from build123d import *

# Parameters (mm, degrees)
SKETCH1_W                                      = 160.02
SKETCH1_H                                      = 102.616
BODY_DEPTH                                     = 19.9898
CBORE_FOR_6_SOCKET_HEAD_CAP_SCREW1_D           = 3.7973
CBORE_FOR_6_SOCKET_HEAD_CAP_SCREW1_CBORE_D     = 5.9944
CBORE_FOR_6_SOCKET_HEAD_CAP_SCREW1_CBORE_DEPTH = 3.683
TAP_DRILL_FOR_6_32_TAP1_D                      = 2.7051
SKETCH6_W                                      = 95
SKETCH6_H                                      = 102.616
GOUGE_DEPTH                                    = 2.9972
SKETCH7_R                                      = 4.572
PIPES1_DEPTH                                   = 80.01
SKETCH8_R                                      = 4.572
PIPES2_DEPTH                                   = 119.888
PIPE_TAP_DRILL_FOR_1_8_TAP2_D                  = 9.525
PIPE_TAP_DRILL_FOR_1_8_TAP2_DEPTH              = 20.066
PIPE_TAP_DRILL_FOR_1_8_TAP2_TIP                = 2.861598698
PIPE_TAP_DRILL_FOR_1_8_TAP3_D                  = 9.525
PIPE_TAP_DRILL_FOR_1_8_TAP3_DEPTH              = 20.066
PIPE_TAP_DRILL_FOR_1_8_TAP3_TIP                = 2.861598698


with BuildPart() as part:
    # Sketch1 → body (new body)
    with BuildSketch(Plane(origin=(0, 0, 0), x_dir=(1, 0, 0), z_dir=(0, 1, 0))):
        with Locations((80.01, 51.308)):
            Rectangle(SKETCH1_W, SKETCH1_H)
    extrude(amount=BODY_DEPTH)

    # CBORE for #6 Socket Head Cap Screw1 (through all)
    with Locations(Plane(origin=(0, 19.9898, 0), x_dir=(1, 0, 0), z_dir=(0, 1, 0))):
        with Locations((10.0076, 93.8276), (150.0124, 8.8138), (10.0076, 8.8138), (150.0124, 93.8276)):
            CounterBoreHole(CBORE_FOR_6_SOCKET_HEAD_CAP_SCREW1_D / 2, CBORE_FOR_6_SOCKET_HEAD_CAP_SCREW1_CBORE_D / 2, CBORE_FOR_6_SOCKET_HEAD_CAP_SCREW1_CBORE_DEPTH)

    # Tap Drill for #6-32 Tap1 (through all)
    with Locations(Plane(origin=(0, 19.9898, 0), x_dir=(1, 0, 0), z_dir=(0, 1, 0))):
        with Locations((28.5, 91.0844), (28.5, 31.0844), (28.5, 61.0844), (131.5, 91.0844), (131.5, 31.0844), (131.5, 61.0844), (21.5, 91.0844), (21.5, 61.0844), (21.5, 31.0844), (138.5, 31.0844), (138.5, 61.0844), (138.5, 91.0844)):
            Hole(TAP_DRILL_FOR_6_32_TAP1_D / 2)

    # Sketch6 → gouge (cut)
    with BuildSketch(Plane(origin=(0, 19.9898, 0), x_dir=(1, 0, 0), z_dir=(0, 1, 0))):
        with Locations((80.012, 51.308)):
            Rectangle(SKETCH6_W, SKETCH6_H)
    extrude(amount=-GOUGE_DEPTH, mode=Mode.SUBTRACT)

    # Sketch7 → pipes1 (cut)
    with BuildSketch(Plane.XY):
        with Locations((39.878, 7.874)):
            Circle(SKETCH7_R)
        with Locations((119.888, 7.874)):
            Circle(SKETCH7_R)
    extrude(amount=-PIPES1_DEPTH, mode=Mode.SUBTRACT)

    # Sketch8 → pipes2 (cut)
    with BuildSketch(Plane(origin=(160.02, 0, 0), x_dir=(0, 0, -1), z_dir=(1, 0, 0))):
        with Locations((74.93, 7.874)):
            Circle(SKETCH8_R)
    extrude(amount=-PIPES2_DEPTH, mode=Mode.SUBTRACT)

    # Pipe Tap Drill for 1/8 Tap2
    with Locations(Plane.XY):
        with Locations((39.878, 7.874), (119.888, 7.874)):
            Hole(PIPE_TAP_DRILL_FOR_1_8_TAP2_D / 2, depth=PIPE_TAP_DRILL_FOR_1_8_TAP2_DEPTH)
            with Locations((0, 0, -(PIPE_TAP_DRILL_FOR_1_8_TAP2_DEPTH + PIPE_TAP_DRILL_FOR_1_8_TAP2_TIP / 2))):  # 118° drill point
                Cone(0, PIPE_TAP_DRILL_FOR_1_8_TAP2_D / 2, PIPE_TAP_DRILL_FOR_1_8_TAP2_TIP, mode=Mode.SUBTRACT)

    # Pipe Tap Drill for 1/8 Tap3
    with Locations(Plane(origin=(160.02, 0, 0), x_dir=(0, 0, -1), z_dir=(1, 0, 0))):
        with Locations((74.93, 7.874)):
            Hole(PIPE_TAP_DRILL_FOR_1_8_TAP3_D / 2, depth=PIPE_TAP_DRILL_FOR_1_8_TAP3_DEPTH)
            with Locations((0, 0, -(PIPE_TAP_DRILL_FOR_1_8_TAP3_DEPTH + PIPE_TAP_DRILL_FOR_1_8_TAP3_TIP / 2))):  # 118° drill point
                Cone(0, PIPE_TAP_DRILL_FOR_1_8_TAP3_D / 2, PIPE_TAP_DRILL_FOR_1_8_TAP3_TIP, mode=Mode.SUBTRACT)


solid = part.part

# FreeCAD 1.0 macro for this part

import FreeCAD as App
import Part
import Sketcher
from FreeCAD import Vector
Q = App.Units.Quantity


def add_polygon(sketch, points):
    """Adds a closed chain of lines whose ends are joined by coincident constraints."""
    first, n = sketch.GeometryCount, len(points)
    for a, b in zip(points, points[1:] + points[:1]):
        sketch.addGeometry(Part.LineSegment(App.Vector(*a, 0), App.Vector(*b, 0)), False)
    for i in range(n):
        sketch.addConstraint(Sketcher.Constraint("Coincident", first + i, 2, first + (i + 1) % n, 1))

doc = App.newDocument("Part")
body = doc.addObject("PartDesign::Body", "Body")

# Sketch on XZ plane
sketch1 = body.newObject("Sketcher::SketchObject", "Sketch")
sketch1.AttachmentSupport = (doc.getObject("XZ_Plane"), [""])
sketch1.MapMode = "FlatFace"
add_polygon(sketch1, [(0, -102.616), (0, 0), (160.02, 0), (160.02, -102.616)])  # lines 0-3
sketch1.addConstraint(Sketcher.Constraint("Vertical", 0))
sketch1.addConstraint(Sketcher.Constraint("Horizontal", 1))
sketch1.addConstraint(Sketcher.Constraint("Vertical", 2))
sketch1.addConstraint(Sketcher.Constraint("Horizontal", 3))
sketch1.addConstraint(Sketcher.Constraint("Coincident", 0, 2, -1, 1))
sketch1.addConstraint(Sketcher.Constraint("DistanceX", 1, 1, 1, 2, Q("6.3 in")))
sketch1.addConstraint(Sketcher.Constraint("DistanceY", 0, 1, 0, 2, Q("4.04 in")))
pad1 = body.newObject("PartDesign::Pad", "Pad")
pad1.Profile = sketch1
pad1.Length = Q("0.787 in")
pad1.Reversed = True

# Sketch on XZ plane
sketch2 = body.newObject("Sketcher::SketchObject", "Sketch001")
sketch2.AttachmentSupport = (doc.getObject("XZ_Plane"), [""])
sketch2.MapMode = "FlatFace"
sketch2.AttachmentOffset = App.Placement(Vector(0, 0, -0.787 * 25.4), App.Rotation())
sketch2.addGeometry(Part.Circle(Vector(10.0076, -93.8276, 0), Vector(0, 0, 1), 1.89865), False)
sketch2.addGeometry(Part.Circle(Vector(150.0124, -8.8138, 0), Vector(0, 0, 1), 1.89865), False)
sketch2.addGeometry(Part.Circle(Vector(10.0076, -8.8138, 0), Vector(0, 0, 1), 1.89865), False)
sketch2.addGeometry(Part.Circle(Vector(150.0124, -93.8276, 0), Vector(0, 0, 1), 1.89865), False)
sketch2.addConstraint(Sketcher.Constraint("Equal", 0, 1))
sketch2.addConstraint(Sketcher.Constraint("Equal", 1, 2))
sketch2.addConstraint(Sketcher.Constraint("Equal", 2, 3))
sketch2.addConstraint(Sketcher.Constraint("Horizontal", 1, 3, 2, 3))
sketch2.addConstraint(Sketcher.Constraint("Horizontal", 0, 3, 3, 3))
sketch2.addConstraint(Sketcher.Constraint("Vertical", 0, 3, 2, 3))
sketch2.addConstraint(Sketcher.Constraint("Vertical", 1, 3, 3, 3))
sketch2.addConstraint(Sketcher.Constraint("Diameter", 0, Q("0.1495 in")))
sketch2.addConstraint(Sketcher.Constraint("DistanceX", -1, 1, 0, 3, Q("0.394 in")))
sketch2.addConstraint(Sketcher.Constraint("DistanceY", 0, 3, -1, 1, Q("3.694 in")))
sketch2.addConstraint(Sketcher.Constraint("DistanceX", -1, 1, 1, 3, Q("5.906 in")))
sketch2.addConstraint(Sketcher.Constraint("DistanceY", 1, 3, -1, 1, Q("0.347 in")))
doc.recompute()
hole = body.newObject("PartDesign::Hole", "Hole")
hole.Profile = sketch2
hole.ThreadType = "None"
hole.Diameter = Q("0.1495 in")
hole.DepthType = "ThroughAll"
hole.HoleCutType = "Counterbore"
hole.HoleCutDiameter = Q("0.236 in")
hole.HoleCutDepth = Q("0.145 in")
hole.Reversed = True

# Sketch on XZ plane
sketch3 = body.newObject("Sketcher::SketchObject", "Sketch002")
sketch3.AttachmentSupport = (doc.getObject("XZ_Plane"), [""])
sketch3.MapMode = "FlatFace"
sketch3.AttachmentOffset = App.Placement(Vector(0, 0, -0.787 * 25.4), App.Rotation())
sketch3.addGeometry(Part.Circle(Vector(28.5, -91.0844, 0), Vector(0, 0, 1), 1.35255), False)
sketch3.addGeometry(Part.Circle(Vector(28.5, -31.0844, 0), Vector(0, 0, 1), 1.35255), False)
sketch3.addGeometry(Part.Circle(Vector(28.5, -61.0844, 0), Vector(0, 0, 1), 1.35255), False)
sketch3.addGeometry(Part.Circle(Vector(131.5, -91.0844, 0), Vector(0, 0, 1), 1.35255), False)
sketch3.addGeometry(Part.Circle(Vector(131.5, -31.0844, 0), Vector(0, 0, 1), 1.35255), False)
sketch3.addGeometry(Part.Circle(Vector(131.5, -61.0844, 0), Vector(0, 0, 1), 1.35255), False)
sketch3.addGeometry(Part.Circle(Vector(21.5, -91.0844, 0), Vector(0, 0, 1), 1.35255), False)
sketch3.addGeometry(Part.Circle(Vector(21.5, -61.0844, 0), Vector(0, 0, 1), 1.35255), False)
sketch3.addGeometry(Part.Circle(Vector(21.5, -31.0844, 0), Vector(0, 0, 1), 1.35255), False)
sketch3.addGeometry(Part.Circle(Vector(138.5, -31.0844, 0), Vector(0, 0, 1), 1.35255), False)
sketch3.addGeometry(Part.Circle(Vector(138.5, -61.0844, 0), Vector(0, 0, 1), 1.35255), False)
sketch3.addGeometry(Part.Circle(Vector(138.5, -91.0844, 0), Vector(0, 0, 1), 1.35255), False)
sketch3.addConstraint(Sketcher.Constraint("Equal", 0, 1))
sketch3.addConstraint(Sketcher.Constraint("Equal", 1, 2))
sketch3.addConstraint(Sketcher.Constraint("Equal", 2, 3))
sketch3.addConstraint(Sketcher.Constraint("Equal", 3, 4))
sketch3.addConstraint(Sketcher.Constraint("Equal", 4, 5))
sketch3.addConstraint(Sketcher.Constraint("Equal", 5, 6))
sketch3.addConstraint(Sketcher.Constraint("Equal", 6, 7))
sketch3.addConstraint(Sketcher.Constraint("Equal", 7, 8))
sketch3.addConstraint(Sketcher.Constraint("Equal", 8, 9))
sketch3.addConstraint(Sketcher.Constraint("Equal", 9, 10))
sketch3.addConstraint(Sketcher.Constraint("Equal", 10, 11))
sketch3.addConstraint(Sketcher.Constraint("Horizontal", 0, 3, 3, 3))
sketch3.addConstraint(Sketcher.Constraint("Horizontal", 1, 3, 4, 3))
sketch3.addConstraint(Sketcher.Constraint("Horizontal", 2, 3, 5, 3))
sketch3.addConstraint(Sketcher.Constraint("Horizontal", 3, 3, 6, 3))
sketch3.addConstraint(Sketcher.Constraint("Horizontal", 5, 3, 7, 3))
sketch3.addConstraint(Sketcher.Constraint("Horizontal", 4, 3, 8, 3))
sketch3.addConstraint(Sketcher.Constraint("Horizontal", 8, 3, 9, 3))
sketch3.addConstraint(Sketcher.Constraint("Horizontal", 7, 3, 10, 3))
sketch3.addConstraint(Sketcher.Constraint("Horizontal", 6, 3, 11, 3))
sketch3.addConstraint(Sketcher.Constraint("Vertical", 0, 3, 1, 3))
sketch3.addConstraint(Sketcher.Constraint("Vertical", 1, 3, 2, 3))
sketch3.addConstraint(Sketcher.Constraint("Vertical", 3, 3, 4, 3))
sketch3.addConstraint(Sketcher.Constraint("Vertical", 4, 3, 5, 3))
sketch3.addConstraint(Sketcher.Constraint("Vertical", 6, 3, 7, 3))
sketch3.addConstraint(Sketcher.Constraint("Vertical", 7, 3, 8, 3))
sketch3.addConstraint(Sketcher.Constraint("Vertical", 9, 3, 10, 3))
sketch3.addConstraint(Sketcher.Constraint("Vertical", 10, 3, 11, 3))
sketch3.addConstraint(Sketcher.Constraint("Diameter", 0, Q("0.1065 in")))
sketch3.addConstraint(Sketcher.Constraint("DistanceY", 0, 3, -1, 1, Q("3.586 in")))
sketch3.addConstraint(Sketcher.Constraint("DistanceX", -1, 1, 0, 3, 28.5))
sketch3.addConstraint(Sketcher.Constraint("DistanceY", 1, 3, -1, 1, 31.0844))
sketch3.addConstraint(Sketcher.Constraint("DistanceY", 2, 3, -1, 1, 61.0844))
sketch3.addConstraint(Sketcher.Constraint("DistanceX", -1, 1, 3, 3, 131.5))
sketch3.addConstraint(Sketcher.Constraint("DistanceX", -1, 1, 6, 3, 21.5))
sketch3.addConstraint(Sketcher.Constraint("DistanceX", -1, 1, 9, 3, 138.5))
doc.recompute()
hole2 = body.newObject("PartDesign::Hole", "Hole001")
hole2.Profile = sketch3
hole2.ThreadType = "None"
hole2.Diameter = Q("0.1065 in")
hole2.DepthType = "ThroughAll"
hole2.Reversed = True

# Sketch on XZ plane
sketch4 = body.newObject("Sketcher::SketchObject", "Sketch003")
sketch4.AttachmentSupport = (doc.getObject("XZ_Plane"), [""])
sketch4.MapMode = "FlatFace"
sketch4.AttachmentOffset = App.Placement(Vector(0, 0, -0.787 * 25.4), App.Rotation())
add_polygon(sketch4, [(32.512, -102.616), (32.512, 0), (127.512, 0), (127.512, -102.616)])  # lines 0-3
sketch4.addConstraint(Sketcher.Constraint("Vertical", 0))
sketch4.addConstraint(Sketcher.Constraint("Horizontal", 1))
sketch4.addConstraint(Sketcher.Constraint("Vertical", 2))
sketch4.addConstraint(Sketcher.Constraint("Horizontal", 3))
sketch4.addConstraint(Sketcher.Constraint("PointOnObject", 0, 2, -1))
sketch4.addConstraint(Sketcher.Constraint("DistanceY", 0, 1, 0, 2, Q("4.04 in")))
sketch4.addConstraint(Sketcher.Constraint("DistanceX", -1, 1, 0, 2, Q("1.28 in")))
sketch4.addConstraint(Sketcher.Constraint("DistanceX", 1, 1, 1, 2, 95.0))
pocket1 = body.newObject("PartDesign::Pocket", "Pocket")
pocket1.Profile = sketch4
pocket1.Length = Q("0.118 in")
pocket1.Reversed = True

# Sketch on XY plane
sketch5 = body.newObject("Sketcher::SketchObject", "Sketch004")
sketch5.AttachmentSupport = (doc.getObject("XY_Plane"), [""])
sketch5.MapMode = "FlatFace"
sketch5.addGeometry(Part.Circle(Vector(39.878, 7.874, 0), Vector(0, 0, 1), 4.572), False)
sketch5.addGeometry(Part.Circle(Vector(119.888, 7.874, 0), Vector(0, 0, 1), 4.572), False)
sketch5.addConstraint(Sketcher.Constraint("Equal", 0, 1))
sketch5.addConstraint(Sketcher.Constraint("Horizontal", 0, 3, 1, 3))
sketch5.addConstraint(Sketcher.Constraint("Diameter", 0, Q("0.36 in")))
sketch5.addConstraint(Sketcher.Constraint("DistanceX", -1, 1, 0, 3, Q("1.57 in")))
sketch5.addConstraint(Sketcher.Constraint("DistanceY", -1, 1, 0, 3, Q("0.31 in")))
sketch5.addConstraint(Sketcher.Constraint("DistanceX", -1, 1, 1, 3, Q("4.72 in")))
pocket2 = body.newObject("PartDesign::Pocket", "Pocket001")
pocket2.Profile = sketch5
pocket2.Length = Q("3.15 in")

# Sketch on YZ plane
sketch6 = body.newObject("Sketcher::SketchObject", "Sketch005")
sketch6.AttachmentSupport = (doc.getObject("YZ_Plane"), [""])
sketch6.MapMode = "FlatFace"
sketch6.AttachmentOffset = App.Placement(Vector(0, 0, 6.3 * 25.4), App.Rotation())
sketch6.addGeometry(Part.Circle(Vector(7.874, -74.93, 0), Vector(0, 0, 1), 4.572), False)
sketch6.addConstraint(Sketcher.Constraint("Diameter", 0, Q("0.36 in")))
sketch6.addConstraint(Sketcher.Constraint("DistanceX", -1, 1, 0, 3, Q("0.31 in")))
sketch6.addConstraint(Sketcher.Constraint("DistanceY", 0, 3, -1, 1, Q("2.95 in")))
pocket3 = body.newObject("PartDesign::Pocket", "Pocket002")
pocket3.Profile = sketch6
pocket3.Length = Q("4.72 in")

# Sketch on XY plane
sketch7 = body.newObject("Sketcher::SketchObject", "Sketch006")
sketch7.AttachmentSupport = (doc.getObject("XY_Plane"), [""])
sketch7.MapMode = "FlatFace"
sketch7.addGeometry(Part.Circle(Vector(39.878, 7.874, 0), Vector(0, 0, 1), 4.7625), False)
sketch7.addGeometry(Part.Circle(Vector(119.888, 7.874, 0), Vector(0, 0, 1), 4.7625), False)
sketch7.addConstraint(Sketcher.Constraint("Equal", 0, 1))
sketch7.addConstraint(Sketcher.Constraint("Horizontal", 0, 3, 1, 3))
sketch7.addConstraint(Sketcher.Constraint("Diameter", 0, Q("0.375 in")))
sketch7.addConstraint(Sketcher.Constraint("DistanceX", -1, 1, 0, 3, Q("1.57 in")))
sketch7.addConstraint(Sketcher.Constraint("DistanceY", -1, 1, 0, 3, Q("0.31 in")))
sketch7.addConstraint(Sketcher.Constraint("DistanceX", -1, 1, 1, 3, Q("4.72 in")))
doc.recompute()
hole3 = body.newObject("PartDesign::Hole", "Hole002")
hole3.Profile = sketch7
hole3.ThreadType = "None"
hole3.Diameter = Q("0.375 in")
hole3.DepthType = "Dimension"
hole3.Depth = Q("0.79 in")
hole3.DrillPoint = "Angled"
hole3.DrillPointAngle = 118

# Sketch on YZ plane
sketch8 = body.newObject("Sketcher::SketchObject", "Sketch007")
sketch8.AttachmentSupport = (doc.getObject("YZ_Plane"), [""])
sketch8.MapMode = "FlatFace"
sketch8.AttachmentOffset = App.Placement(Vector(0, 0, 6.3 * 25.4), App.Rotation())
sketch8.addGeometry(Part.Circle(Vector(7.874, -74.93, 0), Vector(0, 0, 1), 4.7625), False)
sketch8.addConstraint(Sketcher.Constraint("Diameter", 0, Q("0.375 in")))
sketch8.addConstraint(Sketcher.Constraint("DistanceX", -1, 1, 0, 3, Q("0.31 in")))
sketch8.addConstraint(Sketcher.Constraint("DistanceY", 0, 3, -1, 1, Q("2.95 in")))
doc.recompute()
hole4 = body.newObject("PartDesign::Hole", "Hole003")
hole4.Profile = sketch8
hole4.ThreadType = "None"
hole4.Diameter = Q("0.375 in")
hole4.DepthType = "Dimension"
hole4.Depth = Q("0.79 in")
hole4.DrillPoint = "Angled"
hole4.DrillPointAngle = 118

doc.recompute()
